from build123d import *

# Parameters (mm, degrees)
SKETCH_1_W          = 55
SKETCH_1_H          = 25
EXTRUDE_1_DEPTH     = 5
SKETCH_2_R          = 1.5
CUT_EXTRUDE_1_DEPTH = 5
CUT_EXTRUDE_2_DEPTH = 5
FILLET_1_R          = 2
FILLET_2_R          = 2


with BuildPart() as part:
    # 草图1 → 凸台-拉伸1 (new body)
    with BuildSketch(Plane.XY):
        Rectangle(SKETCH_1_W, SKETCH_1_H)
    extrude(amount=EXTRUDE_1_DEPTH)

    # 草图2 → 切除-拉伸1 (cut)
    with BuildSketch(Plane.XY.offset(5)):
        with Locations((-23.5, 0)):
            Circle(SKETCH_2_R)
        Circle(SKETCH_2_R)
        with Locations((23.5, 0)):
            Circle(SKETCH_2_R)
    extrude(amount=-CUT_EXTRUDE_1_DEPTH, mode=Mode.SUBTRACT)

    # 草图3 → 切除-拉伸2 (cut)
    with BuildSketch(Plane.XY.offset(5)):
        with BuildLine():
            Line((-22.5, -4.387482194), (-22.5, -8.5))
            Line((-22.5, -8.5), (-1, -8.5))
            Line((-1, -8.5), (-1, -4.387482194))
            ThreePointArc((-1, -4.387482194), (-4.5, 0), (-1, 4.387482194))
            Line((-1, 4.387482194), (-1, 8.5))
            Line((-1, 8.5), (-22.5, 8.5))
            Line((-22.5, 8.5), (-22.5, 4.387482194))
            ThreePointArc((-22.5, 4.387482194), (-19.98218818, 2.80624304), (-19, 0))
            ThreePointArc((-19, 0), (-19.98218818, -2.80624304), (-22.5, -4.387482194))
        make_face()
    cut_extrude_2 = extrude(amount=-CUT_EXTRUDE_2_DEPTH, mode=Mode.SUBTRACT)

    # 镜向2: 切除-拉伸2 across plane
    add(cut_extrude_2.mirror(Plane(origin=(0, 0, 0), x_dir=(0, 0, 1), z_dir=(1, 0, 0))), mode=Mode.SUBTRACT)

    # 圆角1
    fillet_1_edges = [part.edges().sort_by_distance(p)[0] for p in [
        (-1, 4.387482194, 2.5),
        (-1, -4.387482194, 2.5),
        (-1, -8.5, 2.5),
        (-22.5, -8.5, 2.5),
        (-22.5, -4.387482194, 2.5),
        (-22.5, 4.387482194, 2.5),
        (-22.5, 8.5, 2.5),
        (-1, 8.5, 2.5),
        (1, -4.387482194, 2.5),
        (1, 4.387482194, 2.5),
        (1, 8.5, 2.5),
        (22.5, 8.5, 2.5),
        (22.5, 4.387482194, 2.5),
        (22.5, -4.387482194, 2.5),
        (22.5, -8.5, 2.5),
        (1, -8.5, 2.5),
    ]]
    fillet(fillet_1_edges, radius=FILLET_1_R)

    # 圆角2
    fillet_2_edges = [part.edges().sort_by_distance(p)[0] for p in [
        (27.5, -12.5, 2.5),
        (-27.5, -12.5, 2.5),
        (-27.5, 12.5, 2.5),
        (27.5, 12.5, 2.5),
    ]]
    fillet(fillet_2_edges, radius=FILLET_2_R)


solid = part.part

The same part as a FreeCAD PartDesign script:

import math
import FreeCAD as App
import Part
import Sketcher


def edges_at(feature, points):
    """Names of the edges that pass closest to the given points."""
    edges = feature.Shape.Edges
    near = lambda p: min(range(len(edges)), key=lambda i: edges[i].distToShape(Part.Vertex(*p))[0])
    return sorted({f"Edge{near(p) + 1}" for p in points})


def add_polygon(sketch, points):
    """Adds a closed chain of lines whose ends are joined by coincident constraints."""
    first, n = sketch.GeometryCount, len(points)
    for a, b in zip(points, points[1:] + points[:1]):
        sketch.addGeometry(Part.LineSegment(App.Vector(*a, 0), App.Vector(*b, 0)), False)
    for i in range(n):
        sketch.addConstraint(Sketcher.Constraint("Coincident", first + i, 2, first + (i + 1) % n, 1))

doc = App.newDocument("Part")
body = doc.addObject("PartDesign::Body", "Body")

# Sketch on XY plane
sketch1 = body.newObject("Sketcher::SketchObject", "Sketch")
sketch1.AttachmentSupport = (doc.getObject("XY_Plane"), [""])
sketch1.MapMode = "FlatFace"
add_polygon(sketch1, [(-28, 12), (-28, -12), (28, -12), (28, 12)])  # lines 0-3
sketch1.addConstraint([
    Sketcher.Constraint("Vertical", 0),
    Sketcher.Constraint("Horizontal", 1),
    Sketcher.Constraint("Vertical", 2),
    Sketcher.Constraint("Horizontal", 3),
    Sketcher.Constraint("Symmetric", 0, 2, 2, 2, -1, 1),
    Sketcher.Constraint("DistanceX", 1, 1, 1, 2, 55.0),
    Sketcher.Constraint("DistanceY", 0, 2, 0, 1, 25.0),
])
pad1 = body.newObject("PartDesign::Pad", "Pad")
pad1.Profile = sketch1
pad1.Length = 5

# Sketch on XY plane
sketch2 = body.newObject("Sketcher::SketchObject", "Sketch001")
sketch2.AttachmentSupport = (doc.getObject("XY_Plane"), [""])
sketch2.MapMode = "FlatFace"
sketch2.AttachmentOffset = App.Placement(App.Vector(0, 0, 5), App.Rotation())
sketch2.addGeometry([
    Part.Circle(App.Vector(-23.5, 0, 0), App.Vector(0, 0, 1), 1.5),
    Part.Circle(App.Vector(0, 0, 0), App.Vector(0, 0, 1), 1.5),
    Part.Circle(App.Vector(23.5, 0, 0), App.Vector(0, 0, 1), 1.5),
], False)
sketch2.addConstraint([
    Sketcher.Constraint("Coincident", 1, 3, -1, 1),
    Sketcher.Constraint("Equal", 0, 1),
    Sketcher.Constraint("Equal", 1, 2),
    Sketcher.Constraint("Symmetric", 0, 3, 2, 3, -1, 1),
    Sketcher.Constraint("PointOnObject", 0, 3, -1),
    Sketcher.Constraint("Diameter", 0, 3.0),
    Sketcher.Constraint("DistanceX", 0, 3, 2, 3, 47.0),
])
pocket1 = body.newObject("PartDesign::Pocket", "Pocket")
pocket1.Profile = sketch2
pocket1.Length = 5

# Sketch on XY plane
sketch3 = body.newObject("Sketcher::SketchObject", "Sketch002")
sketch3.AttachmentSupport = (doc.getObject("XY_Plane"), [""])
sketch3.MapMode = "FlatFace"
sketch3.AttachmentOffset = App.Placement(App.Vector(0, 0, 5), App.Rotation())
sketch3.addGeometry([
    Part.LineSegment(App.Vector(-22.5, -4.4, 0), App.Vector(-22.5, -8.5, 0)),  # 0
    Part.LineSegment(App.Vector(-22.5, -8.5, 0), App.Vector(-1, -8.5, 0)),  # 1
    Part.LineSegment(App.Vector(-1, -8.5, 0), App.Vector(-1, -4.4, 0)),  # 2
    Part.ArcOfCircle(Part.Circle(App.Vector(0, 0, 0), App.Vector(0, 0, 1), 4.5), math.radians(103), math.radians(257)),  # 3
    Part.LineSegment(App.Vector(-1, 4.4, 0), App.Vector(-1, 8.5, 0)),  # 4
    Part.LineSegment(App.Vector(-1, 8.5, 0), App.Vector(-22.5, 8.5, 0)),  # 5
    Part.LineSegment(App.Vector(-22.5, 8.5, 0), App.Vector(-22.5, 4.4, 0)),  # 6
    Part.ArcOfCircle(Part.Circle(App.Vector(-23.5, 0, 0), App.Vector(0, 0, 1), 4.5), math.radians(0), math.radians(77)),  # 7
    Part.ArcOfCircle(Part.Circle(App.Vector(-23.5, 0, 0), App.Vector(0, 0, 1), 4.5), math.radians(-77), math.radians(0)),  # 8
], False)
sketch3.addConstraint([
    Sketcher.Constraint("Coincident", 0, 2, 1, 1),
    Sketcher.Constraint("Coincident", 1, 2, 2, 1),
    Sketcher.Constraint("Coincident", 2, 2, 3, 2),
    Sketcher.Constraint("Coincident", 3, 1, 4, 1),
    Sketcher.Constraint("Coincident", 4, 2, 5, 1),
    Sketcher.Constraint("Coincident", 5, 2, 6, 1),
    Sketcher.Constraint("Coincident", 6, 2, 7, 2),
    Sketcher.Constraint("Tangent", 7, 1, 8, 2),
    Sketcher.Constraint("Coincident", 8, 1, 0, 1),
    Sketcher.Constraint("Vertical", 0),
    Sketcher.Constraint("Horizontal", 1),
    Sketcher.Constraint("Vertical", 2),
    Sketcher.Constraint("Vertical", 4),
    Sketcher.Constraint("Horizontal", 5),
    Sketcher.Constraint("Vertical", 6),
    Sketcher.Constraint("Coincident", 3, 3, -1, 1),
    Sketcher.Constraint("Equal", 3, 7),
    Sketcher.Constraint("Equal", 7, 8),
    Sketcher.Constraint("Symmetric", 1, 2, 4, 2, -1),
    Sketcher.Constraint("Symmetric", 6, 2, 8, 1, -1),
    Sketcher.Constraint("PointOnObject", 7, 1, -1),
    Sketcher.Constraint("Horizontal", 3, 1, 6, 2),
    Sketcher.Constraint("Radius", 3, 4.5),
    Sketcher.Constraint("DistanceX", 1, 1, 1, 2, 21.5),
    Sketcher.Constraint("DistanceX", 1, 2, -1, 1, 1.0),
    Sketcher.Constraint("DistanceY", 1, 2, 4, 2, 17.0),
])
pocket2 = body.newObject("PartDesign::Pocket", "Pocket001")
pocket2.Profile = sketch3
pocket2.Length = 5
doc.recompute()

mirrored = body.newObject("PartDesign::Mirrored", "Mirrored")
mirrored.Originals = [pocket2]
mirrored.MirrorPlane = (doc.getObject("YZ_Plane"), [""])
body.Tip = mirrored
doc.recompute()

fillet = body.newObject("PartDesign::Fillet", "Fillet")
fillet.Base = (mirrored, edges_at(mirrored, [
    (-1, 4.387, 2.5),
    (-1, -4.387, 2.5),
    (-1, -8.5, 2.5),
    (-22.5, -8.5, 2.5),
    (-22.5, -4.387, 2.5),
    (-22.5, 4.387, 2.5),
    (-22.5, 8.5, 2.5),
    (-1, 8.5, 2.5),
    (1, -4.387, 2.5),
    (1, 4.387, 2.5),
    (1, 8.5, 2.5),
    (22.5, 8.5, 2.5),
    (22.5, 4.387, 2.5),
    (22.5, -4.387, 2.5),
    (22.5, -8.5, 2.5),
    (1, -8.5, 2.5),
]))
fillet.Radius = 2
doc.recompute()

fillet2 = body.newObject("PartDesign::Fillet", "Fillet001")
fillet2.Base = (fillet, edges_at(fillet, [
    (27.5, -12.5, 2.5),
    (-27.5, -12.5, 2.5),
    (-27.5, 12.5, 2.5),
    (27.5, 12.5, 2.5),
]))
fillet2.Radius = 2

doc.recompute()
